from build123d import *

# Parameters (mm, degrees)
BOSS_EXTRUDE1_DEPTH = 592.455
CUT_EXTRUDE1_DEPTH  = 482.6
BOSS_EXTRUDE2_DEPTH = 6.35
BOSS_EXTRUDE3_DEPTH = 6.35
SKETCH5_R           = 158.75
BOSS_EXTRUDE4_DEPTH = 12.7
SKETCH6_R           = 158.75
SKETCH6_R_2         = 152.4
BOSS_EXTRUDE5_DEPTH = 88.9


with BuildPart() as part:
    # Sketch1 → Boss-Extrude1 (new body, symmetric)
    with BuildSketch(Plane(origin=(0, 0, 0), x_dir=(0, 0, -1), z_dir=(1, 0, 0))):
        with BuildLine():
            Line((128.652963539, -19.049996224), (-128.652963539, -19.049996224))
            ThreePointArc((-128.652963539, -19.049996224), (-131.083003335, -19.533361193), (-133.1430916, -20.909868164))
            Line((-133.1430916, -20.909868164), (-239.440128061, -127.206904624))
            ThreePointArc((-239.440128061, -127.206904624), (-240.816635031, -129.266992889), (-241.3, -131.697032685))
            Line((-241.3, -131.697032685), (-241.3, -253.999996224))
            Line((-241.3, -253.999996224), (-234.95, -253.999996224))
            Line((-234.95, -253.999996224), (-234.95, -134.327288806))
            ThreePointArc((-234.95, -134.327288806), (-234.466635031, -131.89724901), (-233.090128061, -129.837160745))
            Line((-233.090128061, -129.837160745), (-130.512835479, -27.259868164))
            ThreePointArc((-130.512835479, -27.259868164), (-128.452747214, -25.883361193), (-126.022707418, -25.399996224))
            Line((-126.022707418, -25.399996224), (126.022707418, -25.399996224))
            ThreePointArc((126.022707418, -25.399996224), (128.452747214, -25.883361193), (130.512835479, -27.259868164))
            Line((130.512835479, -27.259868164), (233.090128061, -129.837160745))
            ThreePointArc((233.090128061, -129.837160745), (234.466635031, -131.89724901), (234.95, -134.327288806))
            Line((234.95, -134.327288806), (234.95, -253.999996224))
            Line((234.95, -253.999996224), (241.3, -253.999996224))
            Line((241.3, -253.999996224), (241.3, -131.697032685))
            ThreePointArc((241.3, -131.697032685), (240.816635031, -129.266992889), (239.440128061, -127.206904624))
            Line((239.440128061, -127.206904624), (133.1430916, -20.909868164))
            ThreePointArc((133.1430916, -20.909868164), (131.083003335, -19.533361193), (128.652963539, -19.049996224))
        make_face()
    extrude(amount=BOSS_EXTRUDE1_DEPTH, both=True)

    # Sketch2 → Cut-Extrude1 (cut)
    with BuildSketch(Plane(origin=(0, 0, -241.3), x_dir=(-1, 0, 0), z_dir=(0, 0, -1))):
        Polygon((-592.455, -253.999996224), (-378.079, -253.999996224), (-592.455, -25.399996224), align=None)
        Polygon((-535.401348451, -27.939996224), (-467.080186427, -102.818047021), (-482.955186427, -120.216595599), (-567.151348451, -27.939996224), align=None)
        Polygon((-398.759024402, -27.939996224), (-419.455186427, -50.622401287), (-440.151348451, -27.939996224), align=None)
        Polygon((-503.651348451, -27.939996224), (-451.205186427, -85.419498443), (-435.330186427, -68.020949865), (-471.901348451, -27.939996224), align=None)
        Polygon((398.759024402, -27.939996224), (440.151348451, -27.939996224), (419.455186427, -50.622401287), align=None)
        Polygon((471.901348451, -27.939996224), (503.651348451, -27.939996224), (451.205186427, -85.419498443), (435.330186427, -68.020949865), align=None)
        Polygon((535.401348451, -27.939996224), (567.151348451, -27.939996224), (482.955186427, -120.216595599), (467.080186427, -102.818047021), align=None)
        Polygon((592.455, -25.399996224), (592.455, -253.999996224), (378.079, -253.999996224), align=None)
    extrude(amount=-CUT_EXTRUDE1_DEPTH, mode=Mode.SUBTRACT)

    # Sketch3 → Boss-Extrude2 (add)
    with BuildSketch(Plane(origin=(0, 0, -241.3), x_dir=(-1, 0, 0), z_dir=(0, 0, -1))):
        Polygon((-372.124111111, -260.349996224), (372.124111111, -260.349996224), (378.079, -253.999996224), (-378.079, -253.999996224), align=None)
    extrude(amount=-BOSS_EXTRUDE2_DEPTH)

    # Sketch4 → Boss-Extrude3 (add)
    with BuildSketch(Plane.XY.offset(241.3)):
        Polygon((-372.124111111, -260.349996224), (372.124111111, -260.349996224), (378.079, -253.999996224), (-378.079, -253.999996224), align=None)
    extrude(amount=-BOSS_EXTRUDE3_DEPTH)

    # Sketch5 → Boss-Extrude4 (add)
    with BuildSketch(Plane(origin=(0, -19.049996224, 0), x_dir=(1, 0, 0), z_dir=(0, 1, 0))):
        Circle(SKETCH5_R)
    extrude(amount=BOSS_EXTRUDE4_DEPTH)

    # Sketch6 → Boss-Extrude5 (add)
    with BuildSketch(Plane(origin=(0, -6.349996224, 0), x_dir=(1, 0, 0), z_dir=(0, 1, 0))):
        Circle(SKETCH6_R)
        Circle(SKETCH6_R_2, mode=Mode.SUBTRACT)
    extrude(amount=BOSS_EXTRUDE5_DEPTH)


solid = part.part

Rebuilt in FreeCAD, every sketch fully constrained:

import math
import FreeCAD as App
import Part
import Sketcher
Q = App.Units.Quantity

doc = App.newDocument("Part")
body = doc.addObject("PartDesign::Body", "Body")

sketch1 = doc.addObject("Sketcher::SketchObject", "Sketch")
body.addObject(sketch1)
sketch1.AttachmentSupport = (doc.YZ_Plane, [""])
sketch1.MapMode = "FlatFace"
sketch1.addGeometry([
    Part.LineSegment(App.Vector(-19.049996, -128.652964, 0), App.Vector(-19.049996, 128.652964, 0)),
    Part.ArcOfCircle(Part.Circle(App.Vector(-25.399996, 128.652964, 0), App.Vector(0, 0, 1), 6.35), math.radians(0), math.radians(45)),
    Part.LineSegment(App.Vector(-20.909868, 133.143092, 0), App.Vector(-127.206905, 239.440128, 0)),
    Part.ArcOfCircle(Part.Circle(App.Vector(-131.697033, 234.95, 0), App.Vector(0, 0, 1), 6.35), math.radians(45), math.radians(90)),
    Part.LineSegment(App.Vector(-131.697033, 241.3, 0), App.Vector(-253.999996, 241.3, 0)),
    Part.LineSegment(App.Vector(-253.999996, 241.3, 0), App.Vector(-253.999996, 234.95, 0)),
    Part.LineSegment(App.Vector(-253.999996, 234.95, 0), App.Vector(-134.327289, 234.95, 0)),
    Part.ArcOfCircle(Part.Circle(App.Vector(-134.327289, 228.6, 0), App.Vector(0, 0, 1), 6.35), math.radians(45), math.radians(90)),
    Part.LineSegment(App.Vector(-129.837161, 233.090128, 0), App.Vector(-27.259868, 130.512835, 0)),
    Part.ArcOfCircle(Part.Circle(App.Vector(-31.749996, 126.022707, 0), App.Vector(0, 0, 1), 6.35), math.radians(0), math.radians(45)),
    Part.LineSegment(App.Vector(-25.399996, 126.022707, 0), App.Vector(-25.399996, -126.022707, 0)),
    Part.ArcOfCircle(Part.Circle(App.Vector(-31.749996, -126.022707, 0), App.Vector(0, 0, 1), 6.35), math.radians(-45), math.radians(0)),
    Part.LineSegment(App.Vector(-27.259868, -130.512835, 0), App.Vector(-129.837161, -233.090128, 0)),
    Part.ArcOfCircle(Part.Circle(App.Vector(-134.327289, -228.6, 0), App.Vector(0, 0, 1), 6.35), math.radians(-90), math.radians(-45)),
    Part.LineSegment(App.Vector(-134.327289, -234.95, 0), App.Vector(-253.999996, -234.95, 0)),
    Part.LineSegment(App.Vector(-253.999996, -234.95, 0), App.Vector(-253.999996, -241.3, 0)),
    Part.LineSegment(App.Vector(-253.999996, -241.3, 0), App.Vector(-131.697033, -241.3, 0)),
    Part.ArcOfCircle(Part.Circle(App.Vector(-131.697033, -234.95, 0), App.Vector(0, 0, 1), 6.35), math.radians(-90), math.radians(-45)),
    Part.LineSegment(App.Vector(-127.206905, -239.440128, 0), App.Vector(-20.909868, -133.143092, 0)),
    Part.ArcOfCircle(Part.Circle(App.Vector(-25.399996, -128.652964, 0), App.Vector(0, 0, 1), 6.35), math.radians(-45), math.radians(0)),
], False)
sketch1.addConstraint([
    Sketcher.Constraint("Tangent", 0, 2, 1, 1),
    Sketcher.Constraint("Tangent", 1, 2, 2, 1),
    Sketcher.Constraint("Tangent", 2, 2, 3, 1),
    Sketcher.Constraint("Tangent", 3, 2, 4, 1),
    Sketcher.Constraint("Coincident", 4, 2, 5, 1),
    Sketcher.Constraint("Coincident", 5, 2, 6, 1),
    Sketcher.Constraint("Tangent", 6, 2, 7, 2),
    Sketcher.Constraint("Tangent", 7, 1, 8, 1),
    Sketcher.Constraint("Tangent", 8, 2, 9, 2),
    Sketcher.Constraint("Tangent", 9, 1, 10, 1),
    Sketcher.Constraint("Tangent", 10, 2, 11, 2),
    Sketcher.Constraint("Tangent", 11, 1, 12, 1),
    Sketcher.Constraint("Tangent", 12, 2, 13, 2),
    Sketcher.Constraint("Tangent", 13, 1, 14, 1),
    Sketcher.Constraint("Coincident", 14, 2, 15, 1),
    Sketcher.Constraint("Coincident", 15, 2, 16, 1),
    Sketcher.Constraint("Tangent", 16, 2, 17, 1),
    Sketcher.Constraint("Tangent", 17, 2, 18, 1),
    Sketcher.Constraint("Tangent", 18, 2, 19, 1),
    Sketcher.Constraint("Tangent", 19, 2, 0, 1),
    Sketcher.Constraint("Vertical", 0),
    Sketcher.Constraint("Horizontal", 4),
    Sketcher.Constraint("Vertical", 5),
    Sketcher.Constraint("Horizontal", 6),
    Sketcher.Constraint("Vertical", 10),
    Sketcher.Constraint("Horizontal", 14),
    Sketcher.Constraint("Vertical", 15),
    Sketcher.Constraint("Horizontal", 16),
    Sketcher.Constraint("Equal", 1, 3),
    Sketcher.Constraint("Equal", 3, 7),
    Sketcher.Constraint("Equal", 7, 9),
    Sketcher.Constraint("Equal", 9, 11),
    Sketcher.Constraint("Equal", 11, 13),
    Sketcher.Constraint("Equal", 13, 17),
    Sketcher.Constraint("Equal", 17, 19),
    Sketcher.Constraint("Symmetric", 7, 3, 13, 3, -1),
    Sketcher.Constraint("Symmetric", 3, 3, 17, 3, -1),
    Sketcher.Constraint("Parallel", 2, 8),
    Sketcher.Constraint("Perpendicular", 8, 12),
    Sketcher.Constraint("Parallel", 12, 18),
    Sketcher.Constraint("Horizontal", 3, 3, 5, 2),
    Sketcher.Constraint("Vertical", 19, 3, 9, 1),
    Sketcher.Constraint("Vertical", 8, 2, 11, 1),
    Sketcher.Constraint("Vertical", 5, 2, 14, 2),
    Sketcher.Constraint("Radius", 1, Q("0.25 in")),
    Sketcher.Constraint("DistanceX", 1, 3, -1, 1, Q("0.9999999 in")),
    Sketcher.Constraint("DistanceY", -1, 1, 7, 3, Q("9 in")),
    Sketcher.Constraint("DistanceX", 4, 2, -1, 1, Q("9.9999999 in")),
    Sketcher.Constraint("Distance", 8, 145.066198),
    Sketcher.Constraint("Distance", 2, 150.326711),
])
pad1 = doc.addObject("PartDesign::Pad", "Pad")
body.addObject(pad1)
pad1.Profile = sketch1
pad1.Length = Q("46.65 in")
pad1.Midplane = True

sketch2 = doc.addObject("Sketcher::SketchObject", "Sketch001")
body.addObject(sketch2)
sketch2.AttachmentSupport = (doc.XY_Plane, [""])
sketch2.MapMode = "FlatFace"
sketch2.AttachmentOffset = App.Placement(App.Vector(0, 0, -9.5 * 25.4), App.Rotation())
sketch2.addGeometry([
    Part.LineSegment(App.Vector(592.455, -253.999996, 0), App.Vector(378.079, -253.999996, 0)),
    Part.LineSegment(App.Vector(378.079, -253.999996, 0), App.Vector(592.455, -25.399996, 0)),
    Part.LineSegment(App.Vector(592.455, -25.399996, 0), App.Vector(592.455, -253.999996, 0)),
    Part.LineSegment(App.Vector(467.080186, -102.818047, 0), App.Vector(535.401348, -27.939996, 0)),
    Part.LineSegment(App.Vector(535.401348, -27.939996, 0), App.Vector(567.151348, -27.939996, 0)),
    Part.LineSegment(App.Vector(567.151348, -27.939996, 0), App.Vector(482.955186, -120.216596, 0)),
    Part.LineSegment(App.Vector(482.955186, -120.216596, 0), App.Vector(467.080186, -102.818047, 0)),
    Part.LineSegment(App.Vector(419.455186, -50.622401, 0), App.Vector(398.759024, -27.939996, 0)),
    Part.LineSegment(App.Vector(398.759024, -27.939996, 0), App.Vector(440.151348, -27.939996, 0)),
    Part.LineSegment(App.Vector(440.151348, -27.939996, 0), App.Vector(419.455186, -50.622401, 0)),
    Part.LineSegment(App.Vector(503.651348, -27.939996, 0), App.Vector(451.205186, -85.419498, 0)),
    Part.LineSegment(App.Vector(451.205186, -85.419498, 0), App.Vector(435.330186, -68.02095, 0)),
    Part.LineSegment(App.Vector(435.330186, -68.02095, 0), App.Vector(471.901348, -27.939996, 0)),
    Part.LineSegment(App.Vector(471.901348, -27.939996, 0), App.Vector(503.651348, -27.939996, 0)),
    Part.LineSegment(App.Vector(-440.151348, -27.939996, 0), App.Vector(-398.759024, -27.939996, 0)),
    Part.LineSegment(App.Vector(-398.759024, -27.939996, 0), App.Vector(-419.455186, -50.622401, 0)),
    Part.LineSegment(App.Vector(-419.455186, -50.622401, 0), App.Vector(-440.151348, -27.939996, 0)),
    Part.LineSegment(App.Vector(-503.651348, -27.939996, 0), App.Vector(-471.901348, -27.939996, 0)),
    Part.LineSegment(App.Vector(-471.901348, -27.939996, 0), App.Vector(-435.330186, -68.02095, 0)),
    Part.LineSegment(App.Vector(-435.330186, -68.02095, 0), App.Vector(-451.205186, -85.419498, 0)),
    Part.LineSegment(App.Vector(-451.205186, -85.419498, 0), App.Vector(-503.651348, -27.939996, 0)),
    Part.LineSegment(App.Vector(-567.151348, -27.939996, 0), App.Vector(-535.401348, -27.939996, 0)),
    Part.LineSegment(App.Vector(-535.401348, -27.939996, 0), App.Vector(-467.080186, -102.818047, 0)),
    Part.LineSegment(App.Vector(-467.080186, -102.818047, 0), App.Vector(-482.955186, -120.216596, 0)),
    Part.LineSegment(App.Vector(-482.955186, -120.216596, 0), App.Vector(-567.151348, -27.939996, 0)),
    Part.LineSegment(App.Vector(-592.455, -253.999996, 0), App.Vector(-592.455, -25.399996, 0)),
    Part.LineSegment(App.Vector(-592.455, -25.399996, 0), App.Vector(-378.079, -253.999996, 0)),
    Part.LineSegment(App.Vector(-378.079, -253.999996, 0), App.Vector(-592.455, -253.999996, 0)),
], False)
sketch2.addConstraint([
    Sketcher.Constraint("Coincident", 0, 2, 1, 1),
    Sketcher.Constraint("Coincident", 1, 2, 2, 1),
    Sketcher.Constraint("Coincident", 2, 2, 0, 1),
    Sketcher.Constraint("Coincident", 3, 2, 4, 1),
    Sketcher.Constraint("Coincident", 4, 2, 5, 1),
    Sketcher.Constraint("Coincident", 5, 2, 6, 1),
    Sketcher.Constraint("Coincident", 6, 2, 3, 1),
    Sketcher.Constraint("Coincident", 7, 2, 8, 1),
    Sketcher.Constraint("Coincident", 8, 2, 9, 1),
    Sketcher.Constraint("Coincident", 9, 2, 7, 1),
    Sketcher.Constraint("Coincident", 10, 2, 11, 1),
    Sketcher.Constraint("Coincident", 11, 2, 12, 1),
    Sketcher.Constraint("Coincident", 12, 2, 13, 1),
    Sketcher.Constraint("Coincident", 13, 2, 10, 1),
    Sketcher.Constraint("Coincident", 14, 2, 15, 1),
    Sketcher.Constraint("Coincident", 15, 2, 16, 1),
    Sketcher.Constraint("Coincident", 16, 2, 14, 1),
    Sketcher.Constraint("Coincident", 17, 2, 18, 1),
    Sketcher.Constraint("Coincident", 18, 2, 19, 1),
    Sketcher.Constraint("Coincident", 19, 2, 20, 1),
    Sketcher.Constraint("Coincident", 20, 2, 17, 1),
    Sketcher.Constraint("Coincident", 21, 2, 22, 1),
    Sketcher.Constraint("Coincident", 22, 2, 23, 1),
    Sketcher.Constraint("Coincident", 23, 2, 24, 1),
    Sketcher.Constraint("Coincident", 24, 2, 21, 1),
    Sketcher.Constraint("Coincident", 25, 2, 26, 1),
    Sketcher.Constraint("Coincident", 26, 2, 27, 1),
    Sketcher.Constraint("Coincident", 27, 2, 25, 1),
    Sketcher.Constraint("Horizontal", 0),
    Sketcher.Constraint("Vertical", 2),
    Sketcher.Constraint("Horizontal", 4),
    Sketcher.Constraint("Horizontal", 8),
    Sketcher.Constraint("Horizontal", 13),
    Sketcher.Constraint("Horizontal", 14),
    Sketcher.Constraint("Horizontal", 17),
    Sketcher.Constraint("Horizontal", 21),
    Sketcher.Constraint("Vertical", 25),
    Sketcher.Constraint("Horizontal", 27),
    Sketcher.Constraint("Symmetric", 7, 2, 14, 2, -2),
    Sketcher.Constraint("Symmetric", 9, 2, 15, 2, -2),
    Sketcher.Constraint("Symmetric", 12, 2, 17, 2, -2),
    Sketcher.Constraint("Symmetric", 11, 2, 18, 2, -2),
    Sketcher.Constraint("Symmetric", 10, 2, 19, 2, -2),
    Sketcher.Constraint("Symmetric", 3, 2, 21, 2, -2),
    Sketcher.Constraint("Symmetric", 6, 2, 22, 2, -2),
    Sketcher.Constraint("Symmetric", 5, 2, 23, 2, -2),
    Sketcher.Constraint("Symmetric", 1, 2, 25, 2, -2),
    Sketcher.Constraint("Symmetric", 0, 2, 26, 2, -2),
    Sketcher.Constraint("Parallel", 3, 5),
    Sketcher.Constraint("Parallel", 6, 7),
    Sketcher.Constraint("Parallel", 5, 9),
    Sketcher.Constraint("Parallel", 9, 10),
    Sketcher.Constraint("Parallel", 7, 11),
    Sketcher.Constraint("Parallel", 10, 12),
    Sketcher.Constraint("Parallel", 12, 15),
    Sketcher.Constraint("Parallel", 11, 16),
    Sketcher.Constraint("Parallel", 18, 20),
    Sketcher.Constraint("Parallel", 22, 24),
    Sketcher.Constraint("Horizontal", 4, 2, 7, 2),
    Sketcher.Constraint("Horizontal", 8, 2, 12, 2),
    Sketcher.Constraint("Equal", 4, 13),
    Sketcher.Constraint("DistanceY", 2, 2, 2, 1, Q("9 in")),
    Sketcher.Constraint("DistanceY", 0, 2, -1, 1, Q("9.9999999 in")),
    Sketcher.Constraint("DistanceX", 8, 2, 4, 2, Q("5 in")),
    Sketcher.Constraint("DistanceX", 0, 2, 0, 1, Q("8.44 in")),
    Sketcher.Constraint("DistanceX", 4, 1, 4, 2, Q("1.25 in")),
    Sketcher.Constraint("DistanceY", 3, 2, -1, 1, Q("1.0999999 in")),
    Sketcher.Constraint("DistanceX", 9, 2, 5, 2, Q("2.5 in")),
    Sketcher.Constraint("DistanceX", 12, 2, 3, 2, Q("2.5 in")),
    Sketcher.Constraint("DistanceX", 9, 2, 10, 2, Q("1.25 in")),
    Sketcher.Constraint("DistanceX", -1, 1, 0, 2, Q("14.885 in")),
    Sketcher.Constraint("DistanceY", 9, 2, -1, 1, 50.622401),
    Sketcher.Constraint("DistanceY", 10, 2, -1, 1, 85.419498),
    Sketcher.Constraint("DistanceX", -1, 1, 3, 2, 535.401348),
])
pocket1 = doc.addObject("PartDesign::Pocket", "Pocket")
body.addObject(pocket1)
pocket1.Profile = sketch2
pocket1.Length = Q("19 in")
pocket1.Reversed = True

sketch3 = doc.addObject("Sketcher::SketchObject", "Sketch002")
body.addObject(sketch3)
sketch3.AttachmentSupport = (doc.XY_Plane, [""])
sketch3.MapMode = "FlatFace"
sketch3.AttachmentOffset = App.Placement(App.Vector(0, 0, -9.5 * 25.4), App.Rotation())
sketch3.addGeometry([
    Part.LineSegment(App.Vector(372.124111, -260.349996, 0), App.Vector(-372.124111, -260.349996, 0)),
    Part.LineSegment(App.Vector(-372.124111, -260.349996, 0), App.Vector(-378.079, -253.999996, 0)),
    Part.LineSegment(App.Vector(-378.079, -253.999996, 0), App.Vector(378.079, -253.999996, 0)),
    Part.LineSegment(App.Vector(378.079, -253.999996, 0), App.Vector(372.124111, -260.349996, 0)),
], False)
sketch3.addConstraint([
    Sketcher.Constraint("Coincident", 0, 2, 1, 1),
    Sketcher.Constraint("Coincident", 1, 2, 2, 1),
    Sketcher.Constraint("Coincident", 2, 2, 3, 1),
    Sketcher.Constraint("Coincident", 3, 2, 0, 1),
    Sketcher.Constraint("Horizontal", 0),
    Sketcher.Constraint("Horizontal", 2),
    Sketcher.Constraint("Equal", 1, 3),
    Sketcher.Constraint("DistanceY", 1, 2, -1, 1, Q("9.9999999 in")),
    Sketcher.Constraint("DistanceX", 2, 1, 2, 2, Q("29.77 in")),
    Sketcher.Constraint("DistanceY", 0, 2, -1, 1, Q("10.2499999 in")),
    Sketcher.Constraint("DistanceX", 1, 2, -1, 1, Q("14.885 in")),
    Sketcher.Constraint("DistanceX", 0, 2, 0, 1, 744.248222),
])
pad2 = doc.addObject("PartDesign::Pad", "Pad001")
body.addObject(pad2)
pad2.Profile = sketch3
pad2.Length = Q("0.25 in")

sketch4 = doc.addObject("Sketcher::SketchObject", "Sketch003")
body.addObject(sketch4)
sketch4.AttachmentSupport = (doc.XY_Plane, [""])
sketch4.MapMode = "FlatFace"
sketch4.AttachmentOffset = App.Placement(App.Vector(0, 0, 9.5 * 25.4), App.Rotation())
sketch4.addGeometry([
    Part.LineSegment(App.Vector(-372.124111, -260.349996, 0), App.Vector(372.124111, -260.349996, 0)),
    Part.LineSegment(App.Vector(372.124111, -260.349996, 0), App.Vector(378.079, -253.999996, 0)),
    Part.LineSegment(App.Vector(378.079, -253.999996, 0), App.Vector(-378.079, -253.999996, 0)),
    Part.LineSegment(App.Vector(-378.079, -253.999996, 0), App.Vector(-372.124111, -260.349996, 0)),
], False)
sketch4.addConstraint([
    Sketcher.Constraint("Coincident", 0, 2, 1, 1),
    Sketcher.Constraint("Coincident", 1, 2, 2, 1),
    Sketcher.Constraint("Coincident", 2, 2, 3, 1),
    Sketcher.Constraint("Coincident", 3, 2, 0, 1),
    Sketcher.Constraint("Horizontal", 0),
    Sketcher.Constraint("Horizontal", 2),
    Sketcher.Constraint("Equal", 1, 3),
    Sketcher.Constraint("DistanceY", 1, 2, -1, 1, Q("9.9999999 in")),
    Sketcher.Constraint("DistanceX", 2, 2, 2, 1, Q("29.77 in")),
    Sketcher.Constraint("DistanceY", 0, 2, -1, 1, Q("10.2499999 in")),
    Sketcher.Constraint("DistanceX", -1, 1, 1, 2, Q("14.885 in")),
    Sketcher.Constraint("DistanceX", 0, 1, 0, 2, 744.248222),
])
pad3 = doc.addObject("PartDesign::Pad", "Pad002")
body.addObject(pad3)
pad3.Profile = sketch4
pad3.Length = Q("0.25 in")
pad3.Reversed = True

sketch5 = doc.addObject("Sketcher::SketchObject", "Sketch004")
body.addObject(sketch5)
sketch5.AttachmentSupport = (doc.XZ_Plane, [""])
sketch5.MapMode = "FlatFace"
sketch5.AttachmentOffset = App.Placement(App.Vector(0, 0, 0.7499999 * 25.4), App.Rotation())
sketch5.addGeometry(Part.Circle(App.Vector(0, 0, 0), App.Vector(0, 0, 1), 158.75), False)
sketch5.addConstraint([
    Sketcher.Constraint("Coincident", 0, 3, -1, 1),
    Sketcher.Constraint("Diameter", 0, Q("12.5 in")),
])
pad4 = doc.addObject("PartDesign::Pad", "Pad003")
body.addObject(pad4)
pad4.Profile = sketch5
pad4.Length = Q("0.5 in")
pad4.Reversed = True

sketch6 = doc.addObject("Sketcher::SketchObject", "Sketch005")
body.addObject(sketch6)
sketch6.AttachmentSupport = (doc.XZ_Plane, [""])
sketch6.MapMode = "FlatFace"
sketch6.AttachmentOffset = App.Placement(App.Vector(0, 0, 0.2499999 * 25.4), App.Rotation())
sketch6.addGeometry([
    Part.Circle(App.Vector(0, 0, 0), App.Vector(0, 0, 1), 158.75),
    Part.Circle(App.Vector(0, 0, 0), App.Vector(0, 0, 1), 152.4),
], False)
sketch6.addConstraint([
    Sketcher.Constraint("Coincident", 0, 3, -1, 1),
    Sketcher.Constraint("Coincident", 1, 3, -1, 1),
    Sketcher.Constraint("Diameter", 1, Q("12 in")),
    Sketcher.Constraint("Diameter", 0, Q("12.5 in")),
])
pad5 = doc.addObject("PartDesign::Pad", "Pad004")
body.addObject(pad5)
pad5.Profile = sketch6
pad5.Length = Q("3.5 in")
pad5.Reversed = True

doc.recompute()
